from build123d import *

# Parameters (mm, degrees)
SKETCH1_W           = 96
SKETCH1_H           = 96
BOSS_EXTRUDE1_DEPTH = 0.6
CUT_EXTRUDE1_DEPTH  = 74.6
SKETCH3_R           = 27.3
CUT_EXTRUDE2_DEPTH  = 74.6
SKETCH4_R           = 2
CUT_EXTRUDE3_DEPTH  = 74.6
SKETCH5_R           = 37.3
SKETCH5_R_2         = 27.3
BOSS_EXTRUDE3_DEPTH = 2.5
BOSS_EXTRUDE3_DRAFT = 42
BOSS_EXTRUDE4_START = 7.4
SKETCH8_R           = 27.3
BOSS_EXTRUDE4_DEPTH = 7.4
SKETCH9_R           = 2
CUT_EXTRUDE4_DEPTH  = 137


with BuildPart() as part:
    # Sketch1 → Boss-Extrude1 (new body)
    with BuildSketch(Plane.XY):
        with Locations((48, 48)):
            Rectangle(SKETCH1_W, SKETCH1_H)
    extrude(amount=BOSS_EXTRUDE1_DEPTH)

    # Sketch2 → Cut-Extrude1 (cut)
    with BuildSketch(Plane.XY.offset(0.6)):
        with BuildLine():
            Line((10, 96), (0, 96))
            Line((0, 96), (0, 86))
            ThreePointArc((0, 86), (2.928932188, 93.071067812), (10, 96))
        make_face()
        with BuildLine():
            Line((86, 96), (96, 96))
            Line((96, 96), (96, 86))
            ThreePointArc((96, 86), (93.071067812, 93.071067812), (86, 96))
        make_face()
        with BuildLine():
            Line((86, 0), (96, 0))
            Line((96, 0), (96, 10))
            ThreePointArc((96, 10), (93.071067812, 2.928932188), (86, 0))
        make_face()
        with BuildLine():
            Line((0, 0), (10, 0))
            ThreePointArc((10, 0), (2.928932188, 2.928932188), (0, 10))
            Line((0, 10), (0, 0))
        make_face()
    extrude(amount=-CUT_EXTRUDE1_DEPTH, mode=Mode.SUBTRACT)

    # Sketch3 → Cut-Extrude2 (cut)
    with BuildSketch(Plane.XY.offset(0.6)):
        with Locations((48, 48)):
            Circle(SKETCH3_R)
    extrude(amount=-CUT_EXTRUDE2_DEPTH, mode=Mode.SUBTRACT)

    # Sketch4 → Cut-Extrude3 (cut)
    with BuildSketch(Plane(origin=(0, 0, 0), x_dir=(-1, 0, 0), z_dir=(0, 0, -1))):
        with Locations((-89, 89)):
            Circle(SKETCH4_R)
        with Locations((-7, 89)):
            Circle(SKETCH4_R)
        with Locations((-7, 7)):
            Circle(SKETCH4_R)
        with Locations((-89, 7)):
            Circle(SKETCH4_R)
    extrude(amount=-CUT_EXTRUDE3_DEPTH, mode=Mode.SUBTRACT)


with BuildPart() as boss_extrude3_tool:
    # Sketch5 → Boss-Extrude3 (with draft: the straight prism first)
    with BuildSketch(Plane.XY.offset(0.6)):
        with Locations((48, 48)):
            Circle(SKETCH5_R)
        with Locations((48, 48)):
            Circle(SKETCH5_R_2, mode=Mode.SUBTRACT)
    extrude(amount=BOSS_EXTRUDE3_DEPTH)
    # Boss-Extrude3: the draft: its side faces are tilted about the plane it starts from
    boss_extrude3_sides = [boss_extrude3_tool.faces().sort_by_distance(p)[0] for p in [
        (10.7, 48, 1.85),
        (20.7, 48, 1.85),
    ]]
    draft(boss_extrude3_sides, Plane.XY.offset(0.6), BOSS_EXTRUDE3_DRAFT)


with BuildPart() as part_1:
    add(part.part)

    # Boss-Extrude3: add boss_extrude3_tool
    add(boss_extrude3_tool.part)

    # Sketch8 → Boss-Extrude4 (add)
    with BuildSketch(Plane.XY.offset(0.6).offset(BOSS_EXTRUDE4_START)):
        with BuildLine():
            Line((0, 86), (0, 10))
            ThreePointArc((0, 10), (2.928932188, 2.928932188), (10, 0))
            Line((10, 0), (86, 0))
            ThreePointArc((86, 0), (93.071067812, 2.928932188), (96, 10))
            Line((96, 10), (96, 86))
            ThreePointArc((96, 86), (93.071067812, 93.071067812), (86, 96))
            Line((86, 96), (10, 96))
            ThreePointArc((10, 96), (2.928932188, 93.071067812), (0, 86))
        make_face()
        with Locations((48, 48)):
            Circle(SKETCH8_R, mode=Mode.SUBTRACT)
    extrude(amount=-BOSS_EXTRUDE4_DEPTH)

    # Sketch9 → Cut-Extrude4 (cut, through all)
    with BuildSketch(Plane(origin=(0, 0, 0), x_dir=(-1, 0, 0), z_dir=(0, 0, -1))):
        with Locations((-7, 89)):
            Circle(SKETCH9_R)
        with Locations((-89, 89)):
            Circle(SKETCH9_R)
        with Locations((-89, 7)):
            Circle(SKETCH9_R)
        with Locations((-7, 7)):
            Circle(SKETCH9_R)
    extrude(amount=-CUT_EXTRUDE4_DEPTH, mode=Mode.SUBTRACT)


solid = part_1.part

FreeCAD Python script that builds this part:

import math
import FreeCAD as App
import Part
import Sketcher
Q = App.Units.Quantity


def faces_at(feature, points):
    """Names of the faces that lie closest to the given points."""
    faces = feature.Shape.Faces
    near = lambda p: min(range(len(faces)), key=lambda i: faces[i].distToShape(Part.Vertex(*p))[0])
    return sorted({f"Face{near(p) + 1}" for p in points})

doc = App.newDocument("Part")
body = doc.addObject("PartDesign::Body", "Body")

# Sketch on XY plane
sketch1 = body.newObject("Sketcher::SketchObject", "Sketch")
sketch1.AttachmentSupport = (doc.getObject("XY_Plane"), [""])
sketch1.MapMode = "FlatFace"
sketch1.addGeometry(Part.LineSegment(App.Vector(0, 96, 0), App.Vector(0, 0, 0)), False)
sketch1.addGeometry(Part.LineSegment(App.Vector(0, 0, 0), App.Vector(96, 0, 0)), False)
sketch1.addGeometry(Part.LineSegment(App.Vector(96, 0, 0), App.Vector(96, 96, 0)), False)
sketch1.addGeometry(Part.LineSegment(App.Vector(96, 96, 0), App.Vector(0, 96, 0)), False)
sketch1.addConstraint(Sketcher.Constraint("Coincident", 0, 2, 1, 1))
sketch1.addConstraint(Sketcher.Constraint("Coincident", 1, 2, 2, 1))
sketch1.addConstraint(Sketcher.Constraint("Coincident", 2, 2, 3, 1))
sketch1.addConstraint(Sketcher.Constraint("Coincident", 3, 2, 0, 1))
sketch1.addConstraint(Sketcher.Constraint("Vertical", 0))
sketch1.addConstraint(Sketcher.Constraint("Horizontal", 1))
sketch1.addConstraint(Sketcher.Constraint("Vertical", 2))
sketch1.addConstraint(Sketcher.Constraint("Horizontal", 3))
sketch1.addConstraint(Sketcher.Constraint("Coincident", 0, 2, -1, 1))
sketch1.addConstraint(Sketcher.Constraint("Equal", 3, 0))
sketch1.addConstraint(Sketcher.Constraint("DistanceX", 1, 1, 1, 2, Q("96 mm")))
pad1 = body.newObject("PartDesign::Pad", "Pad")
pad1.Profile = sketch1
pad1.Length = 0.6

# Sketch on XY plane
sketch2 = body.newObject("Sketcher::SketchObject", "Sketch001")
sketch2.AttachmentSupport = (doc.getObject("XY_Plane"), [""])
sketch2.MapMode = "FlatFace"
sketch2.AttachmentOffset = App.Placement(App.Vector(0, 0, 0.6), App.Rotation())
sketch2.addGeometry(Part.LineSegment(App.Vector(10, 96, 0), App.Vector(0, 96, 0)), False)
sketch2.addGeometry(Part.LineSegment(App.Vector(0, 96, 0), App.Vector(0, 86, 0)), False)
sketch2.addGeometry(Part.ArcOfCircle(Part.Circle(App.Vector(10, 86, 0), App.Vector(0, 0, 1), 10), math.radians(90), math.radians(180)), False)
sketch2.addGeometry(Part.LineSegment(App.Vector(96, 96, 0), App.Vector(86, 96, 0)), False)
sketch2.addGeometry(Part.ArcOfCircle(Part.Circle(App.Vector(86, 86, 0), App.Vector(0, 0, 1), 10), math.radians(0), math.radians(90)), False)
sketch2.addGeometry(Part.LineSegment(App.Vector(96, 86, 0), App.Vector(96, 96, 0)), False)
sketch2.addGeometry(Part.LineSegment(App.Vector(86, 0, 0), App.Vector(96, 0, 0)), False)
sketch2.addGeometry(Part.LineSegment(App.Vector(96, 0, 0), App.Vector(96, 10, 0)), False)
sketch2.addGeometry(Part.ArcOfCircle(Part.Circle(App.Vector(86, 10, 0), App.Vector(0, 0, 1), 10), math.radians(-90), math.radians(0)), False)
sketch2.addGeometry(Part.LineSegment(App.Vector(0, 0, 0), App.Vector(10, 0, 0)), False)
sketch2.addGeometry(Part.ArcOfCircle(Part.Circle(App.Vector(10, 10, 0), App.Vector(0, 0, 1), 10), math.radians(180), math.radians(270)), False)
sketch2.addGeometry(Part.LineSegment(App.Vector(0, 10, 0), App.Vector(0, 0, 0)), False)
sketch2.addConstraint(Sketcher.Constraint("Coincident", 0, 2, 1, 1))
sketch2.addConstraint(Sketcher.Constraint("Tangent", 1, 2, 2, 2))
sketch2.addConstraint(Sketcher.Constraint("Tangent", 2, 1, 0, 1))
sketch2.addConstraint(Sketcher.Constraint("Tangent", 3, 2, 4, 2))
sketch2.addConstraint(Sketcher.Constraint("Tangent", 4, 1, 5, 1))
sketch2.addConstraint(Sketcher.Constraint("Coincident", 5, 2, 3, 1))
sketch2.addConstraint(Sketcher.Constraint("Coincident", 6, 2, 7, 1))
sketch2.addConstraint(Sketcher.Constraint("Tangent", 7, 2, 8, 2))
sketch2.addConstraint(Sketcher.Constraint("Tangent", 8, 1, 6, 1))
sketch2.addConstraint(Sketcher.Constraint("Tangent", 9, 2, 10, 2))
sketch2.addConstraint(Sketcher.Constraint("Tangent", 10, 1, 11, 1))
sketch2.addConstraint(Sketcher.Constraint("Coincident", 11, 2, 9, 1))
sketch2.addConstraint(Sketcher.Constraint("Horizontal", 0))
sketch2.addConstraint(Sketcher.Constraint("Vertical", 1))
sketch2.addConstraint(Sketcher.Constraint("Horizontal", 3))
sketch2.addConstraint(Sketcher.Constraint("Vertical", 5))
sketch2.addConstraint(Sketcher.Constraint("Horizontal", 6))
sketch2.addConstraint(Sketcher.Constraint("Vertical", 7))
sketch2.addConstraint(Sketcher.Constraint("Horizontal", 9))
sketch2.addConstraint(Sketcher.Constraint("Vertical", 11))
sketch2.addConstraint(Sketcher.Constraint("Coincident", 11, 2, -1, 1))
sketch2.addConstraint(Sketcher.Constraint("Equal", 2, 4))
sketch2.addConstraint(Sketcher.Constraint("Equal", 4, 8))
sketch2.addConstraint(Sketcher.Constraint("Equal", 8, 10))
sketch2.addConstraint(Sketcher.Constraint("PointOnObject", 0, 2, -2))
sketch2.addConstraint(Sketcher.Constraint("PointOnObject", 6, 2, -1))
sketch2.addConstraint(Sketcher.Constraint("Horizontal", 2, 3, 4, 3))
sketch2.addConstraint(Sketcher.Constraint("Vertical", 4, 3, 8, 3))
sketch2.addConstraint(Sketcher.Constraint("Radius", 2, Q("10 mm")))
sketch2.addConstraint(Sketcher.Constraint("DistanceY", -1, 1, 2, 3, Q("86 mm")))
sketch2.addConstraint(Sketcher.Constraint("DistanceX", -1, 1, 4, 3, Q("86 mm")))
pocket1 = body.newObject("PartDesign::Pocket", "Pocket")
pocket1.Profile = sketch2
pocket1.Length = 74.6

# Sketch on XY plane
sketch3 = body.newObject("Sketcher::SketchObject", "Sketch002")
sketch3.AttachmentSupport = (doc.getObject("XY_Plane"), [""])
sketch3.MapMode = "FlatFace"
sketch3.AttachmentOffset = App.Placement(App.Vector(0, 0, 0.6), App.Rotation())
sketch3.addGeometry(Part.Circle(App.Vector(48, 48, 0), App.Vector(0, 0, 1), 27.3), False)
sketch3.addConstraint(Sketcher.Constraint("Diameter", 0, Q("54.6 mm")))
sketch3.addConstraint(Sketcher.Constraint("DistanceX", -1, 1, 0, 3, Q("48 mm")))
sketch3.addConstraint(Sketcher.Constraint("DistanceY", -1, 1, 0, 3, Q("48 mm")))
pocket2 = body.newObject("PartDesign::Pocket", "Pocket001")
pocket2.Profile = sketch3
pocket2.Length = 74.6

# Sketch on XY plane
sketch4 = body.newObject("Sketcher::SketchObject", "Sketch003")
sketch4.AttachmentSupport = (doc.getObject("XY_Plane"), [""])
sketch4.MapMode = "FlatFace"
sketch4.addGeometry(Part.Circle(App.Vector(89, 89, 0), App.Vector(0, 0, 1), 2), False)
sketch4.addGeometry(Part.Circle(App.Vector(7, 89, 0), App.Vector(0, 0, 1), 2), False)
sketch4.addGeometry(Part.Circle(App.Vector(7, 7, 0), App.Vector(0, 0, 1), 2), False)
sketch4.addGeometry(Part.Circle(App.Vector(89, 7, 0), App.Vector(0, 0, 1), 2), False)
sketch4.addConstraint(Sketcher.Constraint("Equal", 0, 1))
sketch4.addConstraint(Sketcher.Constraint("Equal", 1, 2))
sketch4.addConstraint(Sketcher.Constraint("Equal", 2, 3))
sketch4.addConstraint(Sketcher.Constraint("Horizontal", 0, 3, 1, 3))
sketch4.addConstraint(Sketcher.Constraint("Horizontal", 2, 3, 3, 3))
sketch4.addConstraint(Sketcher.Constraint("Vertical", 1, 3, 2, 3))
sketch4.addConstraint(Sketcher.Constraint("Vertical", 0, 3, 3, 3))
sketch4.addConstraint(Sketcher.Constraint("Diameter", 0, Q("4 mm")))
sketch4.addConstraint(Sketcher.Constraint("DistanceX", -1, 1, 0, 3, Q("89 mm")))
sketch4.addConstraint(Sketcher.Constraint("DistanceY", -1, 1, 0, 3, Q("89 mm")))
sketch4.addConstraint(Sketcher.Constraint("DistanceX", -1, 1, 1, 3, Q("7 mm")))
sketch4.addConstraint(Sketcher.Constraint("DistanceY", -1, 1, 2, 3, Q("7 mm")))
pocket3 = body.newObject("PartDesign::Pocket", "Pocket002")
pocket3.Profile = sketch4
pocket3.Length = 74.6
pocket3.Reversed = True
body2 = doc.addObject("PartDesign::Body", "Body001")

# Sketch on XY plane
sketch5 = body2.newObject("Sketcher::SketchObject", "Sketch004")
sketch5.AttachmentSupport = (doc.getObject("XY_Plane001"), [""])
sketch5.MapMode = "FlatFace"
sketch5.AttachmentOffset = App.Placement(App.Vector(0, 0, 0.6), App.Rotation())
sketch5.addGeometry(Part.Circle(App.Vector(48, 48, 0), App.Vector(0, 0, 1), 37.3), False)
sketch5.addGeometry(Part.Circle(App.Vector(48, 48, 0), App.Vector(0, 0, 1), 27.3), False)
sketch5.addConstraint(Sketcher.Constraint("Coincident", 1, 3, 0, 3))
sketch5.addConstraint(Sketcher.Constraint("Diameter", 0, Q("74.6 mm")))
sketch5.addConstraint(Sketcher.Constraint("Diameter", 1, Q("54.6 mm")))
sketch5.addConstraint(Sketcher.Constraint("DistanceX", -1, 1, 0, 3, Q("48 mm")))
sketch5.addConstraint(Sketcher.Constraint("DistanceY", -1, 1, 0, 3, Q("48 mm")))
pad2 = body2.newObject("PartDesign::Pad", "Pad001")
pad2.Profile = sketch5
pad2.Length = 2.5
doc.recompute()

datumplane = body2.newObject("PartDesign::Plane", "DatumPlane")
datumplane.AttachmentSupport = (doc.getObject("XY_Plane001"), [""])
datumplane.MapMode = "FlatFace"
datumplane.AttachmentOffset = App.Placement(App.Vector(0, 0, 0.6), App.Rotation())
draft = body2.newObject("PartDesign::Draft", "Draft")
draft.Base = (pad2, faces_at(pad2, [(10.7, 48, 1.85), (20.7, 48, 1.85)]))
draft.NeutralPlane = (datumplane, [""])
draft.Angle = 42
draft.Reversed = False
doc.recompute()

boolean = body.newObject("PartDesign::Boolean", "Boolean")
boolean.Type = "Fuse"
boolean.addObjects([body2])

# Sketch on XY plane
sketch6 = body.newObject("Sketcher::SketchObject", "Sketch005")
sketch6.AttachmentSupport = (doc.getObject("XY_Plane"), [""])
sketch6.MapMode = "FlatFace"
sketch6.AttachmentOffset = App.Placement(App.Vector(0, 0, 8), App.Rotation())
sketch6.addGeometry(Part.LineSegment(App.Vector(0, 86, 0), App.Vector(0, 10, 0)), False)
sketch6.addGeometry(Part.ArcOfCircle(Part.Circle(App.Vector(10, 10, 0), App.Vector(0, 0, 1), 10), math.radians(180), math.radians(270)), False)
sketch6.addGeometry(Part.LineSegment(App.Vector(10, 0, 0), App.Vector(86, 0, 0)), False)
sketch6.addGeometry(Part.ArcOfCircle(Part.Circle(App.Vector(86, 10, 0), App.Vector(0, 0, 1), 10), math.radians(-90), math.radians(0)), False)
sketch6.addGeometry(Part.LineSegment(App.Vector(96, 10, 0), App.Vector(96, 86, 0)), False)
sketch6.addGeometry(Part.ArcOfCircle(Part.Circle(App.Vector(86, 86, 0), App.Vector(0, 0, 1), 10), math.radians(0), math.radians(90)), False)
sketch6.addGeometry(Part.LineSegment(App.Vector(86, 96, 0), App.Vector(10, 96, 0)), False)
sketch6.addGeometry(Part.ArcOfCircle(Part.Circle(App.Vector(10, 86, 0), App.Vector(0, 0, 1), 10), math.radians(90), math.radians(180)), False)
sketch6.addGeometry(Part.Circle(App.Vector(48, 48, 0), App.Vector(0, 0, 1), 27.3), False)
sketch6.addConstraint(Sketcher.Constraint("Tangent", 0, 2, 1, 1))
sketch6.addConstraint(Sketcher.Constraint("Tangent", 1, 2, 2, 1))
sketch6.addConstraint(Sketcher.Constraint("Tangent", 2, 2, 3, 1))
sketch6.addConstraint(Sketcher.Constraint("Tangent", 3, 2, 4, 1))
sketch6.addConstraint(Sketcher.Constraint("Tangent", 4, 2, 5, 1))
sketch6.addConstraint(Sketcher.Constraint("Tangent", 5, 2, 6, 1))
sketch6.addConstraint(Sketcher.Constraint("Tangent", 6, 2, 7, 1))
sketch6.addConstraint(Sketcher.Constraint("Tangent", 7, 2, 0, 1))
sketch6.addConstraint(Sketcher.Constraint("Vertical", 0))
sketch6.addConstraint(Sketcher.Constraint("Horizontal", 2))
sketch6.addConstraint(Sketcher.Constraint("Vertical", 4))
sketch6.addConstraint(Sketcher.Constraint("Horizontal", 6))
sketch6.addConstraint(Sketcher.Constraint("Equal", 1, 3))
sketch6.addConstraint(Sketcher.Constraint("Equal", 3, 5))
sketch6.addConstraint(Sketcher.Constraint("Equal", 5, 7))
sketch6.addConstraint(Sketcher.Constraint("PointOnObject", 0, 2, -2))
sketch6.addConstraint(Sketcher.Constraint("PointOnObject", 1, 2, -1))
sketch6.addConstraint(Sketcher.Constraint("Equal", 6, 0))
sketch6.addConstraint(Sketcher.Constraint("Radius", 1, Q("10 mm")))
sketch6.addConstraint(Sketcher.Constraint("Diameter", 8, Q("54.6 mm")))
sketch6.addConstraint(Sketcher.Constraint("DistanceX", 2, 1, 2, 2, Q("76 mm")))
sketch6.addConstraint(Sketcher.Constraint("DistanceX", -1, 1, 8, 3, Q("48 mm")))
sketch6.addConstraint(Sketcher.Constraint("DistanceY", -1, 1, 8, 3, Q("48 mm")))
pad3 = body.newObject("PartDesign::Pad", "Pad002")
pad3.Profile = sketch6
pad3.Length = 7.4
pad3.Reversed = True

# Sketch on XY plane
sketch7 = body.newObject("Sketcher::SketchObject", "Sketch006")
sketch7.AttachmentSupport = (doc.getObject("XY_Plane"), [""])
sketch7.MapMode = "FlatFace"
sketch7.addGeometry(Part.Circle(App.Vector(7, 89, 0), App.Vector(0, 0, 1), 2), False)
sketch7.addGeometry(Part.Circle(App.Vector(89, 89, 0), App.Vector(0, 0, 1), 2), False)
sketch7.addGeometry(Part.Circle(App.Vector(89, 7, 0), App.Vector(0, 0, 1), 2), False)
sketch7.addGeometry(Part.Circle(App.Vector(7, 7, 0), App.Vector(0, 0, 1), 2), False)
sketch7.addConstraint(Sketcher.Constraint("Equal", 0, 1))
sketch7.addConstraint(Sketcher.Constraint("Equal", 1, 2))
sketch7.addConstraint(Sketcher.Constraint("Equal", 2, 3))
sketch7.addConstraint(Sketcher.Constraint("Horizontal", 0, 3, 1, 3))
sketch7.addConstraint(Sketcher.Constraint("Horizontal", 2, 3, 3, 3))
sketch7.addConstraint(Sketcher.Constraint("Vertical", 1, 3, 2, 3))
sketch7.addConstraint(Sketcher.Constraint("Vertical", 0, 3, 3, 3))
sketch7.addConstraint(Sketcher.Constraint("Diameter", 0, Q("4 mm")))
sketch7.addConstraint(Sketcher.Constraint("DistanceX", -1, 1, 0, 3, Q("7 mm")))
sketch7.addConstraint(Sketcher.Constraint("DistanceY", -1, 1, 0, 3, Q("89 mm")))
sketch7.addConstraint(Sketcher.Constraint("DistanceX", -1, 1, 1, 3, Q("89 mm")))
sketch7.addConstraint(Sketcher.Constraint("DistanceY", -1, 1, 2, 3, Q("7 mm")))
pocket4 = body.newObject("PartDesign::Pocket", "Pocket003")
pocket4.Profile = sketch7
pocket4.Type = "ThroughAll"
pocket4.Reversed = True

doc.recompute()
